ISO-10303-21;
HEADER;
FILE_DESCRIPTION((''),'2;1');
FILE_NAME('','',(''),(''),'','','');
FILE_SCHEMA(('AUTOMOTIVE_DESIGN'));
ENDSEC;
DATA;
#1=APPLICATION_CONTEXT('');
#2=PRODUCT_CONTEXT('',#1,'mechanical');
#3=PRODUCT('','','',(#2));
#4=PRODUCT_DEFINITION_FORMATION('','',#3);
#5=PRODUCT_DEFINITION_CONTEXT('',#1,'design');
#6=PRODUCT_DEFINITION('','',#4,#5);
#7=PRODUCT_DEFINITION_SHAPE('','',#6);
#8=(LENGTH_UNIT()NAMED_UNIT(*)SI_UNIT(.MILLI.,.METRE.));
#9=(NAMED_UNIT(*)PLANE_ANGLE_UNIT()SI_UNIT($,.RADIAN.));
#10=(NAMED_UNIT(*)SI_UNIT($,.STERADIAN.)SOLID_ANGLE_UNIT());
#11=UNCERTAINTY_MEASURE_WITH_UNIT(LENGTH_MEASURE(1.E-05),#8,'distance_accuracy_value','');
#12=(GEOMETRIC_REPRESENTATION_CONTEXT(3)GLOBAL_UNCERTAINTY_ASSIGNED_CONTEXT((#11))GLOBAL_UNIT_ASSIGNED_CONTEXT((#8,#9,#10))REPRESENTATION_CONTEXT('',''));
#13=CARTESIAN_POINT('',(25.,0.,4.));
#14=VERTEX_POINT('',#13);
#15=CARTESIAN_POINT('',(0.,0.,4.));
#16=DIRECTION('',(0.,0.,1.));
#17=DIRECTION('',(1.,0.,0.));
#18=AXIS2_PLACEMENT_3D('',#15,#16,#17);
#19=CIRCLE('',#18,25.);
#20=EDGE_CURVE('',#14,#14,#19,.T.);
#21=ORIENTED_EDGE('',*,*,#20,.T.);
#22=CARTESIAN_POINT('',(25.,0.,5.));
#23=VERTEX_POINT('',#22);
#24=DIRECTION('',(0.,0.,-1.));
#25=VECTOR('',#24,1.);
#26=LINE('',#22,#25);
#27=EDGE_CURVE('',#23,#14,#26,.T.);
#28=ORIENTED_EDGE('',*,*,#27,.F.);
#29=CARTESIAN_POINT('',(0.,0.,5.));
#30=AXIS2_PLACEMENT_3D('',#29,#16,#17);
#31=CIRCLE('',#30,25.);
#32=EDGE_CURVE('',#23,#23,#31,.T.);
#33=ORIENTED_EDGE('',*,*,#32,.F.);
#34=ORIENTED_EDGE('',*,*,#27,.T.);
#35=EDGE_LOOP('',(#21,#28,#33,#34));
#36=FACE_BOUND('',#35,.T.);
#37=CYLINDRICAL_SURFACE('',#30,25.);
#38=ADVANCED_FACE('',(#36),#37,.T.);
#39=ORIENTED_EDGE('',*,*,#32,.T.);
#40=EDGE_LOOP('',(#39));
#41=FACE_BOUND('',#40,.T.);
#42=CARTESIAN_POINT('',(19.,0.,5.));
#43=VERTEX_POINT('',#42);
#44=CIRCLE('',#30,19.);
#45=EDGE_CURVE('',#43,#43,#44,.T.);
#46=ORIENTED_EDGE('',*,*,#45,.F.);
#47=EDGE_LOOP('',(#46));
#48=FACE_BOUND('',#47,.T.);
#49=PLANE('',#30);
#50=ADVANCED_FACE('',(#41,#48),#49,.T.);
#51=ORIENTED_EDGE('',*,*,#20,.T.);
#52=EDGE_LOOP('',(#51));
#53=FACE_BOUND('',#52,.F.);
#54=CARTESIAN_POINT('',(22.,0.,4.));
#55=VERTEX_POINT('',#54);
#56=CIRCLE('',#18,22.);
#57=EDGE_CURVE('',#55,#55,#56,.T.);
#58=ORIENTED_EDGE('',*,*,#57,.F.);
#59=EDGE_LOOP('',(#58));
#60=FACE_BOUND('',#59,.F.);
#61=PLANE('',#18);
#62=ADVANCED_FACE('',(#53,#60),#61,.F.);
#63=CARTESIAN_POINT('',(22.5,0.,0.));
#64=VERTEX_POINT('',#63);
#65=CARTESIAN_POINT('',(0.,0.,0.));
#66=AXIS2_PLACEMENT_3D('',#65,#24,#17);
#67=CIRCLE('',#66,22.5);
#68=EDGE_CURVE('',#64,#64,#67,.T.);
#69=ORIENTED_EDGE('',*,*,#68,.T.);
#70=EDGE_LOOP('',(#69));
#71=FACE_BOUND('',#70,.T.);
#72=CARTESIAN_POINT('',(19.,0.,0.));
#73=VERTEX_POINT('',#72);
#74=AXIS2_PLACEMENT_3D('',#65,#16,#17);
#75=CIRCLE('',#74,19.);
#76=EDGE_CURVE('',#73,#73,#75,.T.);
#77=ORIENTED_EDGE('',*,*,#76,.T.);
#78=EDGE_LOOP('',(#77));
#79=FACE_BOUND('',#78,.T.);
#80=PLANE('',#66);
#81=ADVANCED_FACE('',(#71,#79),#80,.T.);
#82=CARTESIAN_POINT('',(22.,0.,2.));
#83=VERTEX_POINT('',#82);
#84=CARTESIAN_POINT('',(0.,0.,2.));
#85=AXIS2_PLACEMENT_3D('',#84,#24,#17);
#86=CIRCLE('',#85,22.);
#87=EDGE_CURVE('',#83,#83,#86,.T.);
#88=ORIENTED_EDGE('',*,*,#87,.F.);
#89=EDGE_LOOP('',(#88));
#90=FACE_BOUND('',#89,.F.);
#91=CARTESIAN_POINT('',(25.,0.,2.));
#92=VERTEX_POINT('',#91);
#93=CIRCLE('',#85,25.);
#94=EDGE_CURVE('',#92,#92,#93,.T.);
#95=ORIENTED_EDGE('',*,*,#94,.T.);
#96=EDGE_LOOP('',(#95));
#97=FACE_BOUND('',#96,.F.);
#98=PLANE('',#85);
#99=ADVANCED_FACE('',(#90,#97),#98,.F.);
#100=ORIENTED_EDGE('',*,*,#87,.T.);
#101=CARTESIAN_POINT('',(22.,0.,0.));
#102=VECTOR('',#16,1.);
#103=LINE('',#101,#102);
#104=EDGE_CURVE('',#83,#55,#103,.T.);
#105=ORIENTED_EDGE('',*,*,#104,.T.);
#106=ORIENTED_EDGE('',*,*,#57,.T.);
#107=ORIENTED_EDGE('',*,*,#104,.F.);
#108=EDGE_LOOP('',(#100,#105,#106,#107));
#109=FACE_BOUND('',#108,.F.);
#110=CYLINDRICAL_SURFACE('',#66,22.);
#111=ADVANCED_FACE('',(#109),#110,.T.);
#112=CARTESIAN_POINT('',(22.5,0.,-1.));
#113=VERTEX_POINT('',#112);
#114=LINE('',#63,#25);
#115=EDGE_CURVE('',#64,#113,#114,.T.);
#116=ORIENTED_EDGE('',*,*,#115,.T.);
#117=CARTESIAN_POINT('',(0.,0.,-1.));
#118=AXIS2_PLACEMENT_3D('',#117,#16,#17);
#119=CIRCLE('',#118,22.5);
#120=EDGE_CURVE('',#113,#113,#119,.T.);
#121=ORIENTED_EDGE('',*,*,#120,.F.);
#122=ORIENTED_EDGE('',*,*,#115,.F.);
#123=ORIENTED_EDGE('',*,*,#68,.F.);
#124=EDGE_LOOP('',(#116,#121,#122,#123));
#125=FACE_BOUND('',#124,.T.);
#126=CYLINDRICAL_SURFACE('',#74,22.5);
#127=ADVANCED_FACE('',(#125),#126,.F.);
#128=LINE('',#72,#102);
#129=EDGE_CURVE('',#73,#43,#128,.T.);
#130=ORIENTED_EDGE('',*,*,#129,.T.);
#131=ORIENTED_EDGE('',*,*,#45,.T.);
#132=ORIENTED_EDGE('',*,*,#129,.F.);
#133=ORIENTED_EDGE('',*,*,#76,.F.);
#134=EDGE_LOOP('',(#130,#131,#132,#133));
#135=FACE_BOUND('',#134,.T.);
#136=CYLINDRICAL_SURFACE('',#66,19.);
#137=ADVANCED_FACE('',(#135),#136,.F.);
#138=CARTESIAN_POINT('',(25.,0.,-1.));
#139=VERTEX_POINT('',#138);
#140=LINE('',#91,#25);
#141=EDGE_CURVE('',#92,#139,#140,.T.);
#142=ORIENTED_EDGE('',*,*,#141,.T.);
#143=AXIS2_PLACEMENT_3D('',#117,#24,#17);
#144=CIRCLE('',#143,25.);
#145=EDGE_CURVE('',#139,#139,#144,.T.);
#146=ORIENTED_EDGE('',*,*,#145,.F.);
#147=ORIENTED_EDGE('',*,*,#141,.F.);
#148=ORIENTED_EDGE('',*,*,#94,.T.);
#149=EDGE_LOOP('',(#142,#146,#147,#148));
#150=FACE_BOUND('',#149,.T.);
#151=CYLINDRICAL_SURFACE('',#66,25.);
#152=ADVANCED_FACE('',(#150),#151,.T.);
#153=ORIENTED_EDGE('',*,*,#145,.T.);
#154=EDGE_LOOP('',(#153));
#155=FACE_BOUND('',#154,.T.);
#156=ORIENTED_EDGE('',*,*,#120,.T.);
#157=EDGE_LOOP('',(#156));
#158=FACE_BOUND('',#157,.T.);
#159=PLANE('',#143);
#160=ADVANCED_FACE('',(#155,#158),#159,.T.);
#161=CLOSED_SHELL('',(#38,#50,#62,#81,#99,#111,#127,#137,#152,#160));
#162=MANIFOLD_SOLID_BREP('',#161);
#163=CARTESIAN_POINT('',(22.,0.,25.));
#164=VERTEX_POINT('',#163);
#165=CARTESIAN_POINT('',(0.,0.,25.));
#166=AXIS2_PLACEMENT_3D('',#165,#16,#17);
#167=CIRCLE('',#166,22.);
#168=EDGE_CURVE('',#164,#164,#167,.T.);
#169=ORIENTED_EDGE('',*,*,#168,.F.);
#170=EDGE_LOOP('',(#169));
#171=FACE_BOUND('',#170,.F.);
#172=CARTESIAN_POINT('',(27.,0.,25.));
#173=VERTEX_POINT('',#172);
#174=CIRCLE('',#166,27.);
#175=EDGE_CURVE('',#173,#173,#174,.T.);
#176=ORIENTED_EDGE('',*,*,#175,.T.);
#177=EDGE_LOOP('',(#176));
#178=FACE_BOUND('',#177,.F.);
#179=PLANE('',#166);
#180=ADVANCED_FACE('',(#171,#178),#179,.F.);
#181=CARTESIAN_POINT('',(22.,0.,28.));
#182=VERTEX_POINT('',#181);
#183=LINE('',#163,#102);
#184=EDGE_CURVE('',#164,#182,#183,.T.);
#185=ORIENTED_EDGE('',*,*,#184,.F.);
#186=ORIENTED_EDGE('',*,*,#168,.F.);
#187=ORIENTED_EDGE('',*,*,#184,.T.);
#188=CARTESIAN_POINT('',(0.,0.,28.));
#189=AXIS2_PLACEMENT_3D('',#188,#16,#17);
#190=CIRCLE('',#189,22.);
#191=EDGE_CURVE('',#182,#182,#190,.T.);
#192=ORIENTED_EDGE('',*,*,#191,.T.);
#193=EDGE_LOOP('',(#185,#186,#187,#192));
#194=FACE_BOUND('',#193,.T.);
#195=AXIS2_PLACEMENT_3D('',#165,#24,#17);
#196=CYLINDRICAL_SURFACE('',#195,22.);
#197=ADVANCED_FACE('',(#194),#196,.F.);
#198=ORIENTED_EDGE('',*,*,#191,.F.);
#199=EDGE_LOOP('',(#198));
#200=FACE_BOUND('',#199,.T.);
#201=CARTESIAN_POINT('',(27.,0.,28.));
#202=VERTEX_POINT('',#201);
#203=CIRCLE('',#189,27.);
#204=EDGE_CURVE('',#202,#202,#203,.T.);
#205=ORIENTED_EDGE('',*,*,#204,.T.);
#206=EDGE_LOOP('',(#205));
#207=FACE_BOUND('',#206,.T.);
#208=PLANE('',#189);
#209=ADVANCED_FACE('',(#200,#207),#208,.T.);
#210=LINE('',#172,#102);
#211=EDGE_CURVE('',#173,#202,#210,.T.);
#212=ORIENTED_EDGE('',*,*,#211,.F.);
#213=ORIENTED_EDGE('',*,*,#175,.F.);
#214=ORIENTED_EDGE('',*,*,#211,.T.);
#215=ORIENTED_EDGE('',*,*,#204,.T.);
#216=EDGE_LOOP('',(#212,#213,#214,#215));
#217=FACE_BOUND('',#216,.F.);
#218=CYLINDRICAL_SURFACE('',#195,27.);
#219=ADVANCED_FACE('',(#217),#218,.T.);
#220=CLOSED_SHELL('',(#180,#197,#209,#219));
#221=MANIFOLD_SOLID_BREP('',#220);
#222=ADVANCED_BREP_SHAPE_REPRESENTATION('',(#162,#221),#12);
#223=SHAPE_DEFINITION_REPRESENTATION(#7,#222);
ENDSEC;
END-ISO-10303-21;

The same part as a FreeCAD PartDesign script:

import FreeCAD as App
import Part
import Sketcher

doc = App.newDocument("Part")
body = doc.addObject("PartDesign::Body", "Body")

# Sketch on XY plane
sketch1 = body.newObject("Sketcher::SketchObject", "Sketch")
sketch1.AttachmentSupport = (doc.getObject("XY_Plane"), [""])
sketch1.MapMode = "FlatFace"
sketch1.addGeometry(Part.Circle(App.Vector(0, 0, 0), App.Vector(0, 0, 1), 22), False)
sketch1.addGeometry(Part.Circle(App.Vector(0, 0, 0), App.Vector(0, 0, 1), 19), False)
sketch1.addConstraint(Sketcher.Constraint("Coincident", 0, 3, -1, 1))
sketch1.addConstraint(Sketcher.Constraint("Coincident", 1, 3, -1, 1))
sketch1.addConstraint(Sketcher.Constraint("Diameter", 0, 44.0))
sketch1.addConstraint(Sketcher.Constraint("Diameter", 1, 38.0))
pad1 = body.newObject("PartDesign::Pad", "Pad")
pad1.Profile = sketch1
pad1.Length = 5

# Sketch on XY plane
sketch2 = body.newObject("Sketcher::SketchObject", "Sketch001")
sketch2.AttachmentSupport = (doc.getObject("XY_Plane"), [""])
sketch2.MapMode = "FlatFace"
sketch2.AttachmentOffset = App.Placement(App.Vector(0, 0, 5), App.Rotation())
sketch2.addGeometry(Part.Circle(App.Vector(0, 0, 0), App.Vector(0, 0, 1), 25), False)
sketch2.addGeometry(Part.Circle(App.Vector(0, 0, 0), App.Vector(0, 0, 1), 22), False)
sketch2.addConstraint(Sketcher.Constraint("Coincident", 0, 3, -1, 1))
sketch2.addConstraint(Sketcher.Constraint("Coincident", 1, 3, -1, 1))
sketch2.addConstraint(Sketcher.Constraint("Diameter", 0, 50.0))
sketch2.addConstraint(Sketcher.Constraint("Diameter", 1, 44.0))
pad2 = body.newObject("PartDesign::Pad", "Pad001")
pad2.Profile = sketch2
pad2.Length = 1
pad2.Reversed = True

# Sketch on XY plane
sketch3 = body.newObject("Sketcher::SketchObject", "Sketch002")
sketch3.AttachmentSupport = (doc.getObject("XY_Plane"), [""])
sketch3.MapMode = "FlatFace"
sketch3.addGeometry(Part.Circle(App.Vector(0, 0, 0), App.Vector(0, 0, 1), 25), False)
sketch3.addGeometry(Part.Circle(App.Vector(0, 0, 0), App.Vector(0, 0, 1), 21), False)
sketch3.addConstraint(Sketcher.Constraint("Coincident", 0, 3, -1, 1))
sketch3.addConstraint(Sketcher.Constraint("Coincident", 1, 3, -1, 1))
sketch3.addConstraint(Sketcher.Constraint("Diameter", 0, 50.0))
sketch3.addConstraint(Sketcher.Constraint("Diameter", 1, 42.0))
pad3 = body.newObject("PartDesign::Pad", "Pad002")
pad3.Profile = sketch3
pad3.Length = 1
pad3.Reversed = True

# Sketch on XY plane
sketch4 = body.newObject("Sketcher::SketchObject", "Sketch003")
sketch4.AttachmentSupport = (doc.getObject("XY_Plane"), [""])
sketch4.MapMode = "FlatFace"
sketch4.addGeometry(Part.Circle(App.Vector(0, 0, 0), App.Vector(0, 0, 1), 25), False)
sketch4.addGeometry(Part.Circle(App.Vector(0, 0, 0), App.Vector(0, 0, 1), 22), False)
sketch4.addConstraint(Sketcher.Constraint("Coincident", 0, 3, -1, 1))
sketch4.addConstraint(Sketcher.Constraint("Coincident", 1, 3, -1, 1))
sketch4.addConstraint(Sketcher.Constraint("Diameter", 0, 50.0))
sketch4.addConstraint(Sketcher.Constraint("Diameter", 1, 44.0))
pad4 = body.newObject("PartDesign::Pad", "Pad003")
pad4.Profile = sketch4
pad4.Length = 2

# Sketch on XY plane
sketch5 = body.newObject("Sketcher::SketchObject", "Sketch004")
sketch5.AttachmentSupport = (doc.getObject("XY_Plane"), [""])
sketch5.MapMode = "FlatFace"
sketch5.addGeometry(Part.Circle(App.Vector(0, 0, 0), App.Vector(0, 0, 1), 22), False)
sketch5.addConstraint(Sketcher.Constraint("Coincident", 0, 3, -1, 1))
sketch5.addConstraint(Sketcher.Constraint("Diameter", 0, 45.0))
pocket1 = body.newObject("PartDesign::Pocket", "Pocket")
pocket1.Profile = sketch5
pocket1.Length = 4
body2 = doc.addObject("PartDesign::Body", "Body001")

# Sketch on XY plane
sketch6 = body2.newObject("Sketcher::SketchObject", "Sketch005")
sketch6.AttachmentSupport = (doc.getObject("XY_Plane001"), [""])
sketch6.MapMode = "FlatFace"
sketch6.AttachmentOffset = App.Placement(App.Vector(0, 0, 25), App.Rotation())
sketch6.addGeometry(Part.Circle(App.Vector(0, 0, 0), App.Vector(0, 0, 1), 27), False)
sketch6.addGeometry(Part.Circle(App.Vector(0, 0, 0), App.Vector(0, 0, 1), 22), False)
sketch6.addConstraint(Sketcher.Constraint("Coincident", 0, 3, -1, 1))
sketch6.addConstraint(Sketcher.Constraint("Coincident", 1, 3, -1, 1))
sketch6.addConstraint(Sketcher.Constraint("Diameter", 0, 54.0))
sketch6.addConstraint(Sketcher.Constraint("Diameter", 1, 44.0))
pad5 = body2.newObject("PartDesign::Pad", "Pad004")
pad5.Profile = sketch6
pad5.Length = 3

doc.recompute()
